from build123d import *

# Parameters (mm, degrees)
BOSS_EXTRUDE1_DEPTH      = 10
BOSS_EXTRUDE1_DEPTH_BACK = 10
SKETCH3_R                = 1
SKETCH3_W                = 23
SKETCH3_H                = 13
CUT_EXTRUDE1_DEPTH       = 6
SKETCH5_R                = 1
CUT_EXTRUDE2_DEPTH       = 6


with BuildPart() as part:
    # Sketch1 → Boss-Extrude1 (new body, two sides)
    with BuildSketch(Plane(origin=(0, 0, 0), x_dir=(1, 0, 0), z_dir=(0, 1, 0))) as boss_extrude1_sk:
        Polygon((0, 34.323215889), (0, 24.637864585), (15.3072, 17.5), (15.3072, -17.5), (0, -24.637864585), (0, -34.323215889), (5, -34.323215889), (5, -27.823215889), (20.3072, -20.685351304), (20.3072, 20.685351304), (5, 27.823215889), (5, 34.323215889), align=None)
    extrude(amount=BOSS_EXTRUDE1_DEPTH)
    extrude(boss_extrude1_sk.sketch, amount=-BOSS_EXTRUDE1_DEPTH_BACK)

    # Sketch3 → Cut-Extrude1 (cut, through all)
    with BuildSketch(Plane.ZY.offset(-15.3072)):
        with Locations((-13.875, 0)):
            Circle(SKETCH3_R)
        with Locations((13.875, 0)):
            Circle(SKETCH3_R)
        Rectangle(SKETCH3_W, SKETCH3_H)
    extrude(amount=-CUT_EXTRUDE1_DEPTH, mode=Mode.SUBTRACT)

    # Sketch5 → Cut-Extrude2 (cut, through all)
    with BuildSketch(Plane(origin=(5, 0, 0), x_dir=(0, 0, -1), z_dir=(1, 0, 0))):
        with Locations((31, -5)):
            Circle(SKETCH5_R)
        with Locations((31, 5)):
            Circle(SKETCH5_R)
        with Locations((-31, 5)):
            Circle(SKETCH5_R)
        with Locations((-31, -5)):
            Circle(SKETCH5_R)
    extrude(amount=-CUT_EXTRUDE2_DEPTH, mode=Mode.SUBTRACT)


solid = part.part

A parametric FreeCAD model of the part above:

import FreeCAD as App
import Part
import Sketcher
Q = App.Units.Quantity


def add_polygon(sketch, points):
    """Adds a closed chain of lines whose ends are joined by coincident constraints."""
    first, n = sketch.GeometryCount, len(points)
    for a, b in zip(points, points[1:] + points[:1]):
        sketch.addGeometry(Part.LineSegment(App.Vector(*a, 0), App.Vector(*b, 0)), False)
    for i in range(n):
        sketch.addConstraint(Sketcher.Constraint("Coincident", first + i, 2, first + (i + 1) % n, 1))

doc = App.newDocument("Part")
body = doc.addObject("PartDesign::Body", "Body")

sketch1 = doc.addObject("Sketcher::SketchObject", "Sketch")
body.addObject(sketch1)
sketch1.AttachmentSupport = (doc.XZ_Plane, [""])
sketch1.MapMode = "FlatFace"
add_polygon(sketch1, [(0, -34), (0, -25), (15, -18), (15, 18), (0, 25), (0, 34), (5, 34), (5, 28), (20, 21), (20, -21), (5, -28), (5, -34)])
sketch1.addConstraint(Sketcher.Constraint("Vertical", 0))
sketch1.addConstraint(Sketcher.Constraint("Vertical", 2))
sketch1.addConstraint(Sketcher.Constraint("Vertical", 4))
sketch1.addConstraint(Sketcher.Constraint("Horizontal", 5))
sketch1.addConstraint(Sketcher.Constraint("Vertical", 6))
sketch1.addConstraint(Sketcher.Constraint("Vertical", 8))
sketch1.addConstraint(Sketcher.Constraint("Vertical", 10))
sketch1.addConstraint(Sketcher.Constraint("Horizontal", 11))
sketch1.addConstraint(Sketcher.Constraint("Symmetric", 0, 2, 3, 2, -1, 1))
sketch1.addConstraint(Sketcher.Constraint("Symmetric", 6, 2, 9, 2, -1))
sketch1.addConstraint(Sketcher.Constraint("Symmetric", 4, 2, 11, 2, -1))
sketch1.addConstraint(Sketcher.Constraint("Parallel", 3, 7))
sketch1.addConstraint(Sketcher.Constraint("Parallel", 1, 9))
sketch1.addConstraint(Sketcher.Constraint("Equal", 1, 3))
sketch1.addConstraint(Sketcher.Constraint("Equal", 3, 7))
sketch1.addConstraint(Sketcher.Constraint("DistanceX", 5, 1, 5, 2, Q("5 mm")))
sketch1.addConstraint(Sketcher.Constraint("DistanceY", 2, 1, 2, 2, Q("35 mm")))
sketch1.addConstraint(Sketcher.Constraint("Angle", 1, Q("25 deg")))
sketch1.addConstraint(Sketcher.Constraint("DistanceY", 6, 2, 6, 1, Q("6.5 mm")))
sketch1.addConstraint(Sketcher.Constraint("DistanceY", 0, 1, 0, 2, Q("9.685351 mm")))
sketch1.addConstraint(Sketcher.Constraint("DistanceX", -1, 1, 1, 2, Q("15.3072 mm")))
pad1 = doc.addObject("PartDesign::Pad", "Pad")
body.addObject(pad1)
pad1.Profile = sketch1
pad1.Type = "TwoLengths"
pad1.Length = 10
pad1.Length2 = 10
pad1.Reversed = True

sketch2 = doc.addObject("Sketcher::SketchObject", "Sketch001")
body.addObject(sketch2)
sketch2.AttachmentSupport = (doc.YZ_Plane, [""])
sketch2.MapMode = "FlatFace"
sketch2.AttachmentOffset = App.Placement(App.Vector(0, 0, 15.3072), App.Rotation())
sketch2.addGeometry(Part.Circle(App.Vector(0, -13.9, 0), App.Vector(0, 0, 1), 1), False)
sketch2.addGeometry(Part.Circle(App.Vector(0, 13.9, 0), App.Vector(0, 0, 1), 1), False)
add_polygon(sketch2, [(6.5, -11.5), (-6.5, -11.5), (-6.5, 11.5), (6.5, 11.5)])
sketch2.addConstraint(Sketcher.Constraint("Horizontal", 2))
sketch2.addConstraint(Sketcher.Constraint("Vertical", 3))
sketch2.addConstraint(Sketcher.Constraint("Horizontal", 4))
sketch2.addConstraint(Sketcher.Constraint("Vertical", 5))
sketch2.addConstraint(Sketcher.Constraint("Equal", 0, 1))
sketch2.addConstraint(Sketcher.Constraint("Symmetric", 0, 3, 1, 3, -1, 1))
sketch2.addConstraint(Sketcher.Constraint("Symmetric", 2, 2, 4, 2, -1, 1))
sketch2.addConstraint(Sketcher.Constraint("PointOnObject", 0, 3, -2))
sketch2.addConstraint(Sketcher.Constraint("Diameter", 0, Q("2 mm")))
sketch2.addConstraint(Sketcher.Constraint("DistanceX", 2, 2, 2, 1, Q("13 mm")))
sketch2.addConstraint(Sketcher.Constraint("DistanceY", 3, 1, 3, 2, Q("23 mm")))
sketch2.addConstraint(Sketcher.Constraint("DistanceY", 0, 3, 1, 3, Q("27.75 mm")))
pocket1 = doc.addObject("PartDesign::Pocket", "Pocket")
body.addObject(pocket1)
pocket1.Profile = sketch2
pocket1.Type = "ThroughAll"
pocket1.Reversed = True

sketch3 = doc.addObject("Sketcher::SketchObject", "Sketch002")
body.addObject(sketch3)
sketch3.AttachmentSupport = (doc.YZ_Plane, [""])
sketch3.MapMode = "FlatFace"
sketch3.AttachmentOffset = App.Placement(App.Vector(0, 0, 5), App.Rotation())
sketch3.addGeometry(Part.Circle(App.Vector(-5, -31, 0), App.Vector(0, 0, 1), 1), False)
sketch3.addGeometry(Part.Circle(App.Vector(5, -31, 0), App.Vector(0, 0, 1), 1), False)
sketch3.addGeometry(Part.Circle(App.Vector(5, 31, 0), App.Vector(0, 0, 1), 1), False)
sketch3.addGeometry(Part.Circle(App.Vector(-5, 31, 0), App.Vector(0, 0, 1), 1), False)
sketch3.addConstraint(Sketcher.Constraint("Equal", 0, 1))
sketch3.addConstraint(Sketcher.Constraint("Equal", 1, 2))
sketch3.addConstraint(Sketcher.Constraint("Equal", 2, 3))
sketch3.addConstraint(Sketcher.Constraint("Symmetric", 0, 3, 2, 3, -1, 1))
sketch3.addConstraint(Sketcher.Constraint("Symmetric", 1, 3, 3, 3, -1, 1))
sketch3.addConstraint(Sketcher.Constraint("Symmetric", 0, 3, 1, 3, -2))
sketch3.addConstraint(Sketcher.Constraint("Diameter", 0, Q("2 mm")))
sketch3.addConstraint(Sketcher.Constraint("DistanceX", 0, 3, -1, 1, Q("5 mm")))
sketch3.addConstraint(Sketcher.Constraint("DistanceY", 0, 3, -1, 1, Q("31 mm")))
pocket2 = doc.addObject("PartDesign::Pocket", "Pocket001")
body.addObject(pocket2)
pocket2.Profile = sketch3
pocket2.Type = "ThroughAll"

doc.recompute()
